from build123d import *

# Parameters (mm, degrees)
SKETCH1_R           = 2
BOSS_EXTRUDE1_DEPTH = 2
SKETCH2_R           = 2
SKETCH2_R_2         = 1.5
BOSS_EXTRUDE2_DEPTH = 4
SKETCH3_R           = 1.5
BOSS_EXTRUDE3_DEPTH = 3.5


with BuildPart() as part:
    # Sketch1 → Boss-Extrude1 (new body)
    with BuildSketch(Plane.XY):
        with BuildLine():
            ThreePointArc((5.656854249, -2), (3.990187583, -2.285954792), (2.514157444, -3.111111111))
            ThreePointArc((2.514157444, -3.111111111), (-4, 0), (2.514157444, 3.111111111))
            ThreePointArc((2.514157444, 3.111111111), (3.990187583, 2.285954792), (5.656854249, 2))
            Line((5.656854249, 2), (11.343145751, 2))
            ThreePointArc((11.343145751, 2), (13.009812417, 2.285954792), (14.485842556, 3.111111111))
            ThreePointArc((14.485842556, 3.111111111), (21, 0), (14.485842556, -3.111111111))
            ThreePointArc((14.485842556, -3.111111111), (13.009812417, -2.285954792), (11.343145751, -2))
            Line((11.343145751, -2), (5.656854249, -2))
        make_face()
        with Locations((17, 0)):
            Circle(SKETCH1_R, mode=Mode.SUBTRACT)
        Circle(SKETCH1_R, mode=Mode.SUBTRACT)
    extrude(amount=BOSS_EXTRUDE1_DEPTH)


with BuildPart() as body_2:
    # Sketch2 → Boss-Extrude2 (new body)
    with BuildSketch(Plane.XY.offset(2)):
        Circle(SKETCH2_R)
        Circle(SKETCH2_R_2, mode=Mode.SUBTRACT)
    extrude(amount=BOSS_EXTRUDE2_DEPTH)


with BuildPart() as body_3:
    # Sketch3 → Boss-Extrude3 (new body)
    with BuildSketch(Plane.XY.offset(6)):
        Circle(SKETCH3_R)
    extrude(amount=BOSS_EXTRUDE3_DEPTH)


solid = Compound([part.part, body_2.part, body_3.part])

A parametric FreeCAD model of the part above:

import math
import FreeCAD as App
import Part
import Sketcher
from FreeCAD import Vector
Q = App.Units.Quantity

doc = App.newDocument("Part")
body = doc.addObject("PartDesign::Body", "Body")

# Sketch on XY plane
sketch1 = body.newObject("Sketcher::SketchObject", "Sketch")
sketch1.AttachmentSupport = (doc.getObject("XY_Plane"), [""])
sketch1.MapMode = "FlatFace"
sketch1.addGeometry(Part.ArcOfCircle(Part.Circle(Vector(5.7, -7, 0), Vector(0, 0, 1), 5), math.radians(90), math.radians(129)), False)
sketch1.addGeometry(Part.LineSegment(Vector(5.7, -2, 0), Vector(11.3, -2, 0)), False)
sketch1.addGeometry(Part.ArcOfCircle(Part.Circle(Vector(11.3, -7, 0), Vector(0, 0, 1), 5), math.radians(51), math.radians(90)), False)
sketch1.addGeometry(Part.ArcOfCircle(Part.Circle(Vector(17, 0, 0), Vector(0, 0, 1), 4), math.radians(-129), math.radians(129)), False)
sketch1.addGeometry(Part.ArcOfCircle(Part.Circle(Vector(11.3, 7, 0), Vector(0, 0, 1), 5), math.radians(-90), math.radians(-51)), False)
sketch1.addGeometry(Part.LineSegment(Vector(11.3, 2, 0), Vector(5.7, 2, 0)), False)
sketch1.addGeometry(Part.ArcOfCircle(Part.Circle(Vector(5.7, 7, 0), Vector(0, 0, 1), 5), math.radians(-129), math.radians(-90)), False)
sketch1.addGeometry(Part.ArcOfCircle(Part.Circle(Vector(0, 0, 0), Vector(0, 0, 1), 4), math.radians(51), math.radians(309)), False)
sketch1.addGeometry(Part.Circle(Vector(17, 0, 0), Vector(0, 0, 1), 2), False)
sketch1.addGeometry(Part.Circle(Vector(0, 0, 0), Vector(0, 0, 1), 2), False)
sketch1.addConstraint(Sketcher.Constraint("Tangent", 0, 1, 1, 1))
sketch1.addConstraint(Sketcher.Constraint("Tangent", 1, 2, 2, 2))
sketch1.addConstraint(Sketcher.Constraint("Tangent", 2, 1, 3, 1))
sketch1.addConstraint(Sketcher.Constraint("Tangent", 3, 2, 4, 2))
sketch1.addConstraint(Sketcher.Constraint("Tangent", 4, 1, 5, 1))
sketch1.addConstraint(Sketcher.Constraint("Tangent", 5, 2, 6, 2))
sketch1.addConstraint(Sketcher.Constraint("Tangent", 6, 1, 7, 1))
sketch1.addConstraint(Sketcher.Constraint("Tangent", 7, 2, 0, 2))
sketch1.addConstraint(Sketcher.Constraint("Horizontal", 1))
sketch1.addConstraint(Sketcher.Constraint("Horizontal", 5))
sketch1.addConstraint(Sketcher.Constraint("Coincident", 7, 3, -1, 1))
sketch1.addConstraint(Sketcher.Constraint("Coincident", 9, 3, -1, 1))
sketch1.addConstraint(Sketcher.Constraint("Coincident", 8, 3, 3, 3))
sketch1.addConstraint(Sketcher.Constraint("Equal", 0, 2))
sketch1.addConstraint(Sketcher.Constraint("Equal", 2, 4))
sketch1.addConstraint(Sketcher.Constraint("Equal", 4, 6))
sketch1.addConstraint(Sketcher.Constraint("Equal", 3, 7))
sketch1.addConstraint(Sketcher.Constraint("Equal", 8, 9))
sketch1.addConstraint(Sketcher.Constraint("Symmetric", 2, 3, 4, 3, -1))
sketch1.addConstraint(Sketcher.Constraint("Diameter", 8, Q("4 mm")))
sketch1.addConstraint(Sketcher.Constraint("Radius", 0, Q("5 mm")))
sketch1.addConstraint(Sketcher.Constraint("Radius", 3, Q("4 mm")))
sketch1.addConstraint(Sketcher.Constraint("DistanceY", 0, 3, -1, 1, Q("7 mm")))
sketch1.addConstraint(Sketcher.Constraint("DistanceX", -1, 1, 3, 3, Q("17 mm")))
pad1 = body.newObject("PartDesign::Pad", "Pad")
pad1.Profile = sketch1
pad1.Length = 2
body2 = doc.addObject("PartDesign::Body", "Body001")

# Sketch on XY plane
sketch2 = body2.newObject("Sketcher::SketchObject", "Sketch001")
sketch2.AttachmentSupport = (doc.getObject("XY_Plane001"), [""])
sketch2.MapMode = "FlatFace"
sketch2.AttachmentOffset = App.Placement(Vector(0, 0, 2), App.Rotation())
sketch2.addGeometry(Part.Circle(Vector(0, 0, 0), Vector(0, 0, 1), 2), False)
sketch2.addGeometry(Part.Circle(Vector(0, 0, 0), Vector(0, 0, 1), 1.5), False)
sketch2.addConstraint(Sketcher.Constraint("Coincident", 0, 3, -1, 1))
sketch2.addConstraint(Sketcher.Constraint("Coincident", 1, 3, -1, 1))
sketch2.addConstraint(Sketcher.Constraint("Diameter", 0, Q("4 mm")))
sketch2.addConstraint(Sketcher.Constraint("Diameter", 1, Q("3 mm")))
pad2 = body2.newObject("PartDesign::Pad", "Pad001")
pad2.Profile = sketch2
pad2.Length = 4
body3 = doc.addObject("PartDesign::Body", "Body002")

# Sketch on XY plane
sketch3 = body3.newObject("Sketcher::SketchObject", "Sketch002")
sketch3.AttachmentSupport = (doc.getObject("XY_Plane002"), [""])
sketch3.MapMode = "FlatFace"
sketch3.AttachmentOffset = App.Placement(Vector(0, 0, 6), App.Rotation())
sketch3.addGeometry(Part.Circle(Vector(0, 0, 0), Vector(0, 0, 1), 1.5), False)
sketch3.addConstraint(Sketcher.Constraint("Coincident", 0, 3, -1, 1))
sketch3.addConstraint(Sketcher.Constraint("Diameter", 0, Q("3 mm")))
pad3 = body3.newObject("PartDesign::Pad", "Pad002")
pad3.Profile = sketch3
pad3.Length = 3.5

doc.recompute()
